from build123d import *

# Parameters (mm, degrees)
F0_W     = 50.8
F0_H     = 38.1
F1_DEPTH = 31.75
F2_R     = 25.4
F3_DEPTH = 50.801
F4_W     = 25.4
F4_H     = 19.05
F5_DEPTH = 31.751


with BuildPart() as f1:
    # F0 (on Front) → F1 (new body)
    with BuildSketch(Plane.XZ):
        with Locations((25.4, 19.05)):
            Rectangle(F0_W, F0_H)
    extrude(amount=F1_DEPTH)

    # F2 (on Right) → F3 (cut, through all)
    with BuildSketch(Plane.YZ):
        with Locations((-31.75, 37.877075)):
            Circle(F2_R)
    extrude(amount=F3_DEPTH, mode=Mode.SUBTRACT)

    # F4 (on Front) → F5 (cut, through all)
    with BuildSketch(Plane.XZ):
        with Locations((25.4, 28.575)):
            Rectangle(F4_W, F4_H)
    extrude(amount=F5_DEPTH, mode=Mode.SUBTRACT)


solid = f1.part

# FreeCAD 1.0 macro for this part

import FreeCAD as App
import Part
import Sketcher
from FreeCAD import Vector
Q = App.Units.Quantity


def add_polygon(sketch, points):
    """Adds a closed chain of lines whose ends are joined by coincident constraints."""
    first, n = sketch.GeometryCount, len(points)
    for a, b in zip(points, points[1:] + points[:1]):
        sketch.addGeometry(Part.LineSegment(App.Vector(*a, 0), App.Vector(*b, 0)), False)
    for i in range(n):
        sketch.addConstraint(Sketcher.Constraint("Coincident", first + i, 2, first + (i + 1) % n, 1))

doc = App.newDocument("Part")
body = doc.addObject("PartDesign::Body", "Body")

sketch1 = doc.addObject("Sketcher::SketchObject", "Sketch")
body.addObject(sketch1)
sketch1.AttachmentSupport = (doc.XZ_Plane, [""])
sketch1.MapMode = "FlatFace"
add_polygon(sketch1, [(0, 38), (0, 0), (51, 0), (51, 38)])
sketch1.addConstraint(Sketcher.Constraint("Vertical", 0))
sketch1.addConstraint(Sketcher.Constraint("Horizontal", 1))
sketch1.addConstraint(Sketcher.Constraint("Vertical", 2))
sketch1.addConstraint(Sketcher.Constraint("Horizontal", 3))
sketch1.addConstraint(Sketcher.Constraint("Coincident", 0, 2, -1, 1))
sketch1.addConstraint(Sketcher.Constraint("DistanceX", 1, 1, 1, 2, Q("2 in")))
sketch1.addConstraint(Sketcher.Constraint("DistanceY", 0, 2, 0, 1, Q("1.5 in")))
pad1 = doc.addObject("PartDesign::Pad", "Pad")
body.addObject(pad1)
pad1.Profile = sketch1
pad1.Length = Q("1.25 in")

sketch2 = doc.addObject("Sketcher::SketchObject", "Sketch001")
body.addObject(sketch2)
sketch2.AttachmentSupport = (doc.YZ_Plane, [""])
sketch2.MapMode = "FlatFace"
sketch2.addGeometry(Part.Circle(Vector(-32, 38, 0), Vector(0, 0, 1), 25), False)
sketch2.addConstraint(Sketcher.Constraint("Diameter", 0, Q("2 in")))
sketch2.addConstraint(Sketcher.Constraint("DistanceX", 0, 3, -1, 1, Q("1.25 in")))
sketch2.addConstraint(Sketcher.Constraint("DistanceY", -1, 1, 0, 3, Q("37.877075 mm")))
pocket1 = doc.addObject("PartDesign::Pocket", "Pocket")
body.addObject(pocket1)
pocket1.Profile = sketch2
pocket1.Type = "ThroughAll"
pocket1.Reversed = True

sketch3 = doc.addObject("Sketcher::SketchObject", "Sketch002")
body.addObject(sketch3)
sketch3.AttachmentSupport = (doc.XZ_Plane, [""])
sketch3.MapMode = "FlatFace"
add_polygon(sketch3, [(13, 38), (13, 19), (38, 19), (38, 38)])
sketch3.addConstraint(Sketcher.Constraint("Vertical", 0))
sketch3.addConstraint(Sketcher.Constraint("Horizontal", 1))
sketch3.addConstraint(Sketcher.Constraint("Vertical", 2))
sketch3.addConstraint(Sketcher.Constraint("Horizontal", 3))
sketch3.addConstraint(Sketcher.Constraint("DistanceX", 1, 1, 1, 2, Q("1 in")))
sketch3.addConstraint(Sketcher.Constraint("DistanceY", 0, 2, 0, 1, Q("0.75 in")))
sketch3.addConstraint(Sketcher.Constraint("DistanceX", -1, 1, 0, 2, Q("0.5 in")))
sketch3.addConstraint(Sketcher.Constraint("DistanceY", -1, 1, 2, 2, Q("1.5 in")))
pocket2 = doc.addObject("PartDesign::Pocket", "Pocket001")
body.addObject(pocket2)
pocket2.Profile = sketch3
pocket2.Type = "ThroughAll"
pocket2.Reversed = True

doc.recompute()
